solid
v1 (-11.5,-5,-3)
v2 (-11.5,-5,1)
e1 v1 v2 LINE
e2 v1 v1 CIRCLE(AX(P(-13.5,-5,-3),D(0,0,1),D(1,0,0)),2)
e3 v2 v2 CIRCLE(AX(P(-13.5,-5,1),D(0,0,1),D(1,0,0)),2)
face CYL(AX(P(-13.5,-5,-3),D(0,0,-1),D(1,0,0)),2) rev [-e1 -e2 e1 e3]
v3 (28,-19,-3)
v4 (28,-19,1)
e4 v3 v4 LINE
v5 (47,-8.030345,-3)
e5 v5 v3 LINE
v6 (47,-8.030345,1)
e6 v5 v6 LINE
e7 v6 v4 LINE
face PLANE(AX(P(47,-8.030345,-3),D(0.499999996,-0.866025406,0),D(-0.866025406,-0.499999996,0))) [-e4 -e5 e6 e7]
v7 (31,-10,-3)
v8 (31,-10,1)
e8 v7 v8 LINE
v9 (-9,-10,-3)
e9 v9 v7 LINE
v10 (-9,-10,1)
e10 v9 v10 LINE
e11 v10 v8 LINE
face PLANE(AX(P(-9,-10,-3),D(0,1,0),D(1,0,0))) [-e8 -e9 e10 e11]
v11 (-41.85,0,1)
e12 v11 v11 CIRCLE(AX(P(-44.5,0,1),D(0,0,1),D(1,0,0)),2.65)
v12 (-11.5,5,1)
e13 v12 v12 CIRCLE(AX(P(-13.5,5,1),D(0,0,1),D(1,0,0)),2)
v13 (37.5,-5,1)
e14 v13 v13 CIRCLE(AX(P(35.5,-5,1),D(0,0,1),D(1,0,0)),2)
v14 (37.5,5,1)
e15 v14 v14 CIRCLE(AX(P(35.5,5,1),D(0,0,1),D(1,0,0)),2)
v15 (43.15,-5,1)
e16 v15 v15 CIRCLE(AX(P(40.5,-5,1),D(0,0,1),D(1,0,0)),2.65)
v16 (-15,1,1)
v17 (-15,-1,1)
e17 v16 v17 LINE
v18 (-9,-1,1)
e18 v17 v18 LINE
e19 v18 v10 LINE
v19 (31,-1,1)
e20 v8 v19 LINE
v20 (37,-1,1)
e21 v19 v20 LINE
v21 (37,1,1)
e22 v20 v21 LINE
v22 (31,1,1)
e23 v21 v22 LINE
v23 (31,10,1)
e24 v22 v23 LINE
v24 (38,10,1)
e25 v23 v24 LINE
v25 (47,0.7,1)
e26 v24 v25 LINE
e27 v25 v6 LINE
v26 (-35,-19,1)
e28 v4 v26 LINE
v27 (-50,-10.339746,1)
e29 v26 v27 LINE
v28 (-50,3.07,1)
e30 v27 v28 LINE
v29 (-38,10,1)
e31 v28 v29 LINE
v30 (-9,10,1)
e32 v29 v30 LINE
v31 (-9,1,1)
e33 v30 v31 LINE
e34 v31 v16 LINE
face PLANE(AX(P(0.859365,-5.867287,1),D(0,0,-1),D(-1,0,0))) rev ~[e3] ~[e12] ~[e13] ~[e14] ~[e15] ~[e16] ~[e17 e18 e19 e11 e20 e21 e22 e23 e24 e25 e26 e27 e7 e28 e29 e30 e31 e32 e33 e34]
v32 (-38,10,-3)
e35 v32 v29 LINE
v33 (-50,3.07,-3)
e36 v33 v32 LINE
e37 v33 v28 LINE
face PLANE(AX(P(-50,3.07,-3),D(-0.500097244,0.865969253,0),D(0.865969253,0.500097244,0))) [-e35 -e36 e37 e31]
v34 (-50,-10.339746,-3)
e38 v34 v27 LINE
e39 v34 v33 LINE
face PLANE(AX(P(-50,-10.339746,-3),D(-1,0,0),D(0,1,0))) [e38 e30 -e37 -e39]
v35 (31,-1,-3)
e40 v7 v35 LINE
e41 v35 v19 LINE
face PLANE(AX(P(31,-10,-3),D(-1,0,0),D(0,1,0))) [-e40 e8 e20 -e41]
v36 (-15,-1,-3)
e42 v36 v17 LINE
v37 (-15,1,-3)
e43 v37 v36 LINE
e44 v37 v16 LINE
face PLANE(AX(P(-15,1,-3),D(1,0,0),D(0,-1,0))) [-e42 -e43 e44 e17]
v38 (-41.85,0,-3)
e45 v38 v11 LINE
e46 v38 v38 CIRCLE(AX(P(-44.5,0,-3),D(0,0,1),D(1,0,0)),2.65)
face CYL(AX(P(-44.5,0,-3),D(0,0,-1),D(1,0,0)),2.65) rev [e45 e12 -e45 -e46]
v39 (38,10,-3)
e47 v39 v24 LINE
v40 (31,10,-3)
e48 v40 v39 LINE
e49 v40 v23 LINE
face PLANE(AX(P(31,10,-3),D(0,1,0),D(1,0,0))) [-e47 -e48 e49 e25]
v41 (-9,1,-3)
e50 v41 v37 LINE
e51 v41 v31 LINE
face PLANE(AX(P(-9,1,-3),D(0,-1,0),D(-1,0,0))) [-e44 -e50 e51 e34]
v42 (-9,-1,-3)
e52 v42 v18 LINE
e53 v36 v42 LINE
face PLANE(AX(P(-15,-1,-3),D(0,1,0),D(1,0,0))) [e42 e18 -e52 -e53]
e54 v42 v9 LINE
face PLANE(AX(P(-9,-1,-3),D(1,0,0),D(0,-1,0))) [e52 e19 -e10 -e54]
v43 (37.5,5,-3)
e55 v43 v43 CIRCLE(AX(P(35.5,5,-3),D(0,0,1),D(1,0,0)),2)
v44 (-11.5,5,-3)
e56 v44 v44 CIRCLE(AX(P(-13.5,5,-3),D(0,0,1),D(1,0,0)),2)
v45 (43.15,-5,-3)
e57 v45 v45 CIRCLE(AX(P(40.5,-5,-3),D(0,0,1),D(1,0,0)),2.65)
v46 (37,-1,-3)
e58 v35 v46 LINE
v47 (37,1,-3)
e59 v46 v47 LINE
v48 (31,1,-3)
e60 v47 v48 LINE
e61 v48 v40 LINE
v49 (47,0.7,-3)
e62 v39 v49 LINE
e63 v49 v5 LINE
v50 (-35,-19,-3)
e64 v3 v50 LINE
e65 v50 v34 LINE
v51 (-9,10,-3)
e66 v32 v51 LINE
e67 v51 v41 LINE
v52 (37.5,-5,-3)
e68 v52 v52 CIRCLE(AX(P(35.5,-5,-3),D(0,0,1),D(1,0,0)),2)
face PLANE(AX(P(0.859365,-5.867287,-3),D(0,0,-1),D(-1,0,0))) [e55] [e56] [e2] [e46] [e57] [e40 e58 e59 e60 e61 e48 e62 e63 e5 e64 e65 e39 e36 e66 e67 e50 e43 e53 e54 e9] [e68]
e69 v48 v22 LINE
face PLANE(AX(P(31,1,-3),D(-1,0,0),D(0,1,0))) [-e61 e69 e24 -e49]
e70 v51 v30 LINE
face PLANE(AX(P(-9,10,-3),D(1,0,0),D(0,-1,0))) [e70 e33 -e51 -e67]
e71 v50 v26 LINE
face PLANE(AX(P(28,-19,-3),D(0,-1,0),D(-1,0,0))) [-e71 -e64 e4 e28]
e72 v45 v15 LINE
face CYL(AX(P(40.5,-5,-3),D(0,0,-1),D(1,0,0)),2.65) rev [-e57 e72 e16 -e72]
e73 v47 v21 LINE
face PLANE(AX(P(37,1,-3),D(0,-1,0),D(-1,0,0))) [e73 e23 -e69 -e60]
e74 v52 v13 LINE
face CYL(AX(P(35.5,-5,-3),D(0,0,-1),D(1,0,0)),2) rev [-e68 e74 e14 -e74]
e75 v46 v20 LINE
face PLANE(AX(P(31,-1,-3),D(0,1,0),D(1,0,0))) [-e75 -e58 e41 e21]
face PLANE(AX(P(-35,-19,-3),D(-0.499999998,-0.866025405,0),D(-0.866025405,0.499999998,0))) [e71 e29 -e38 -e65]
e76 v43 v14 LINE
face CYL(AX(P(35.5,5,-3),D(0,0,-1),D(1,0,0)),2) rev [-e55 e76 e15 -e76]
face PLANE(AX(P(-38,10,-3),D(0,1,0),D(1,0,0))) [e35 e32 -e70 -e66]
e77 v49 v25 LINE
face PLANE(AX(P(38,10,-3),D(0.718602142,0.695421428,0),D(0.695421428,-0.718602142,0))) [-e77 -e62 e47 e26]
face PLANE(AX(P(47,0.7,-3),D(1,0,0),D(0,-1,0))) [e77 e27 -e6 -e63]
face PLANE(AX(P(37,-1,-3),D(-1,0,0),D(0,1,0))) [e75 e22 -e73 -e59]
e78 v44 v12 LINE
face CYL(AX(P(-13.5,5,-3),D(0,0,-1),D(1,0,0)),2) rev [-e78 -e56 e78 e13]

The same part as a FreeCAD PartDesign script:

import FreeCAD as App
import Part
import Sketcher

V = App.Vector
Q = App.Units.Quantity

doc = App.newDocument("Part")
body = doc.addObject("PartDesign::Body", "Body")

# Sketch on XY plane
sketch1 = body.newObject("Sketcher::SketchObject", "Sketch")
sketch1.AttachmentSupport = (doc.getObject("XY_Plane"), [""])
sketch1.MapMode = "FlatFace"
sketch1.AttachmentOffset = App.Placement(V(0, 0, -3), App.Rotation())
sketch1.addGeometry(Part.LineSegment(V(-9, 10, 0), V(-38, 10, 0)), False)
sketch1.addGeometry(Part.LineSegment(V(-38, 10, 0), V(-50, 3.1, 0)), False)
sketch1.addGeometry(Part.LineSegment(V(-50, 3.1, 0), V(-50, -10.3, 0)), False)
sketch1.addGeometry(Part.LineSegment(V(-50, -10.3, 0), V(-35, -19, 0)), False)
sketch1.addGeometry(Part.LineSegment(V(-35, -19, 0), V(28, -19, 0)), False)
sketch1.addGeometry(Part.LineSegment(V(28, -19, 0), V(47, -8, 0)), False)
sketch1.addGeometry(Part.LineSegment(V(47, -8, 0), V(47, 0.7, 0)), False)
sketch1.addGeometry(Part.LineSegment(V(47, 0.7, 0), V(38, 10, 0)), False)
sketch1.addGeometry(Part.LineSegment(V(38, 10, 0), V(31, 10, 0)), False)
sketch1.addGeometry(Part.LineSegment(V(31, 10, 0), V(31, 1, 0)), False)
sketch1.addGeometry(Part.LineSegment(V(31, 1, 0), V(37, 1, 0)), False)
sketch1.addGeometry(Part.LineSegment(V(37, 1, 0), V(37, -1, 0)), False)
sketch1.addGeometry(Part.LineSegment(V(37, -1, 0), V(31, -1, 0)), False)
sketch1.addGeometry(Part.LineSegment(V(31, -1, 0), V(31, -10, 0)), False)
sketch1.addGeometry(Part.LineSegment(V(31, -10, 0), V(-9, -10, 0)), False)
sketch1.addGeometry(Part.LineSegment(V(-9, -10, 0), V(-9, -1, 0)), False)
sketch1.addGeometry(Part.LineSegment(V(-9, -1, 0), V(-15, -1, 0)), False)
sketch1.addGeometry(Part.LineSegment(V(-15, -1, 0), V(-15, 1, 0)), False)
sketch1.addGeometry(Part.LineSegment(V(-15, 1, 0), V(-9, 1, 0)), False)
sketch1.addGeometry(Part.LineSegment(V(-9, 1, 0), V(-9, 10, 0)), False)
sketch1.addGeometry(Part.Circle(V(40.5, -5, 0), V(0, 0, 1), 2.6), False)
sketch1.addGeometry(Part.Circle(V(35.5, -5, 0), V(0, 0, 1), 2), False)
sketch1.addGeometry(Part.Circle(V(-13.5, -5, 0), V(0, 0, 1), 2), False)
sketch1.addGeometry(Part.Circle(V(35.5, 5, 0), V(0, 0, 1), 2), False)
sketch1.addGeometry(Part.Circle(V(-44.5, 0, 0), V(0, 0, 1), 2.6), False)
sketch1.addGeometry(Part.Circle(V(-13.5, 5, 0), V(0, 0, 1), 2), False)
sketch1.addConstraint(Sketcher.Constraint("Coincident", 0, 2, 1, 1))
sketch1.addConstraint(Sketcher.Constraint("Coincident", 1, 2, 2, 1))
sketch1.addConstraint(Sketcher.Constraint("Coincident", 2, 2, 3, 1))
sketch1.addConstraint(Sketcher.Constraint("Coincident", 3, 2, 4, 1))
sketch1.addConstraint(Sketcher.Constraint("Coincident", 4, 2, 5, 1))
sketch1.addConstraint(Sketcher.Constraint("Coincident", 5, 2, 6, 1))
sketch1.addConstraint(Sketcher.Constraint("Coincident", 6, 2, 7, 1))
sketch1.addConstraint(Sketcher.Constraint("Coincident", 7, 2, 8, 1))
sketch1.addConstraint(Sketcher.Constraint("Coincident", 8, 2, 9, 1))
sketch1.addConstraint(Sketcher.Constraint("Coincident", 9, 2, 10, 1))
sketch1.addConstraint(Sketcher.Constraint("Coincident", 10, 2, 11, 1))
sketch1.addConstraint(Sketcher.Constraint("Coincident", 11, 2, 12, 1))
sketch1.addConstraint(Sketcher.Constraint("Coincident", 12, 2, 13, 1))
sketch1.addConstraint(Sketcher.Constraint("Coincident", 13, 2, 14, 1))
sketch1.addConstraint(Sketcher.Constraint("Coincident", 14, 2, 15, 1))
sketch1.addConstraint(Sketcher.Constraint("Coincident", 15, 2, 16, 1))
sketch1.addConstraint(Sketcher.Constraint("Coincident", 16, 2, 17, 1))
sketch1.addConstraint(Sketcher.Constraint("Coincident", 17, 2, 18, 1))
sketch1.addConstraint(Sketcher.Constraint("Coincident", 18, 2, 19, 1))
sketch1.addConstraint(Sketcher.Constraint("Coincident", 19, 2, 0, 1))
sketch1.addConstraint(Sketcher.Constraint("Horizontal", 0))
sketch1.addConstraint(Sketcher.Constraint("Vertical", 2))
sketch1.addConstraint(Sketcher.Constraint("Horizontal", 4))
sketch1.addConstraint(Sketcher.Constraint("Vertical", 6))
sketch1.addConstraint(Sketcher.Constraint("Horizontal", 8))
sketch1.addConstraint(Sketcher.Constraint("Vertical", 9))
sketch1.addConstraint(Sketcher.Constraint("Horizontal", 10))
sketch1.addConstraint(Sketcher.Constraint("Vertical", 11))
sketch1.addConstraint(Sketcher.Constraint("Horizontal", 12))
sketch1.addConstraint(Sketcher.Constraint("Vertical", 13))
sketch1.addConstraint(Sketcher.Constraint("Horizontal", 14))
sketch1.addConstraint(Sketcher.Constraint("Vertical", 15))
sketch1.addConstraint(Sketcher.Constraint("Horizontal", 16))
sketch1.addConstraint(Sketcher.Constraint("Vertical", 17))
sketch1.addConstraint(Sketcher.Constraint("Horizontal", 18))
sketch1.addConstraint(Sketcher.Constraint("Vertical", 19))
sketch1.addConstraint(Sketcher.Constraint("Equal", 21, 22))
sketch1.addConstraint(Sketcher.Constraint("Equal", 22, 23))
sketch1.addConstraint(Sketcher.Constraint("Equal", 20, 24))
sketch1.addConstraint(Sketcher.Constraint("Equal", 23, 25))
sketch1.addConstraint(Sketcher.Constraint("Symmetric", 0, 2, 7, 2, -2))
sketch1.addConstraint(Sketcher.Constraint("Symmetric", 21, 3, 23, 3, -1))
sketch1.addConstraint(Sketcher.Constraint("Symmetric", 22, 3, 25, 3, -1))
sketch1.addConstraint(Sketcher.Constraint("Symmetric", 9, 2, 12, 2, -1))
sketch1.addConstraint(Sketcher.Constraint("Symmetric", 15, 2, 18, 2, -1))
sketch1.addConstraint(Sketcher.Constraint("PointOnObject", 24, 3, -1))
sketch1.addConstraint(Sketcher.Constraint("Horizontal", 20, 3, 21, 3))
sketch1.addConstraint(Sketcher.Constraint("Horizontal", 21, 3, 22, 3))
sketch1.addConstraint(Sketcher.Constraint("Horizontal", 12, 2, 15, 2))
sketch1.addConstraint(Sketcher.Constraint("Equal", 12, 16))
sketch1.addConstraint(Sketcher.Constraint("Equal", 9, 13))
sketch1.addConstraint(Sketcher.Constraint("Diameter", 21, 4.0))
sketch1.addConstraint(Sketcher.Constraint("Diameter", 20, 5.3))
sketch1.addConstraint(Sketcher.Constraint("DistanceX", 0, 2, 0, 1, 29.0))
sketch1.addConstraint(Sketcher.Constraint("DistanceX", 4, 1, 4, 2, 63.0))
sketch1.addConstraint(Sketcher.Constraint("DistanceX", 8, 2, 8, 1, 7.0))
sketch1.addConstraint(Sketcher.Constraint("DistanceX", 10, 1, 10, 2, 6.0))
sketch1.addConstraint(Sketcher.Constraint("DistanceX", 14, 2, 14, 1, 40.0))
sketch1.addConstraint(Sketcher.Constraint("DistanceY", 9, 2, 9, 1, 9.0))
sketch1.addConstraint(Sketcher.Constraint("DistanceY", 11, 2, 11, 1, 2.0))
sketch1.addConstraint(Sketcher.Constraint("Angle", 3, Q("-30 deg")))
sketch1.addConstraint(Sketcher.Constraint("Angle", 5, Q("30 deg")))
sketch1.addConstraint(Sketcher.Constraint("DistanceY", 20, 3, -1, 1, 5.0))
sketch1.addConstraint(Sketcher.Constraint("DistanceX", 1, 2, -1, 1, 50.0))
sketch1.addConstraint(Sketcher.Constraint("DistanceX", 3, 2, -1, 1, 35.0))
sketch1.addConstraint(Sketcher.Constraint("DistanceY", 3, 2, -1, 1, 19.0))
sketch1.addConstraint(Sketcher.Constraint("DistanceX", -1, 1, 5, 2, 47.0))
sketch1.addConstraint(Sketcher.Constraint("DistanceX", 21, 3, 20, 3, 5.0))
sketch1.addConstraint(Sketcher.Constraint("DistanceX", 22, 3, 21, 3, 49.0))
sketch1.addConstraint(Sketcher.Constraint("DistanceX", 24, 3, 22, 3, 31.0))
sketch1.addConstraint(Sketcher.Constraint("DistanceX", -1, 1, 20, 3, 40.5))
sketch1.addConstraint(Sketcher.Constraint("DistanceY", -1, 1, 6, 2, 0.7))
sketch1.addConstraint(Sketcher.Constraint("DistanceY", -1, 1, 1, 2, 3.07))
pad1 = body.newObject("PartDesign::Pad", "Pad")
pad1.Profile = sketch1
pad1.Length = 4

doc.recompute()
